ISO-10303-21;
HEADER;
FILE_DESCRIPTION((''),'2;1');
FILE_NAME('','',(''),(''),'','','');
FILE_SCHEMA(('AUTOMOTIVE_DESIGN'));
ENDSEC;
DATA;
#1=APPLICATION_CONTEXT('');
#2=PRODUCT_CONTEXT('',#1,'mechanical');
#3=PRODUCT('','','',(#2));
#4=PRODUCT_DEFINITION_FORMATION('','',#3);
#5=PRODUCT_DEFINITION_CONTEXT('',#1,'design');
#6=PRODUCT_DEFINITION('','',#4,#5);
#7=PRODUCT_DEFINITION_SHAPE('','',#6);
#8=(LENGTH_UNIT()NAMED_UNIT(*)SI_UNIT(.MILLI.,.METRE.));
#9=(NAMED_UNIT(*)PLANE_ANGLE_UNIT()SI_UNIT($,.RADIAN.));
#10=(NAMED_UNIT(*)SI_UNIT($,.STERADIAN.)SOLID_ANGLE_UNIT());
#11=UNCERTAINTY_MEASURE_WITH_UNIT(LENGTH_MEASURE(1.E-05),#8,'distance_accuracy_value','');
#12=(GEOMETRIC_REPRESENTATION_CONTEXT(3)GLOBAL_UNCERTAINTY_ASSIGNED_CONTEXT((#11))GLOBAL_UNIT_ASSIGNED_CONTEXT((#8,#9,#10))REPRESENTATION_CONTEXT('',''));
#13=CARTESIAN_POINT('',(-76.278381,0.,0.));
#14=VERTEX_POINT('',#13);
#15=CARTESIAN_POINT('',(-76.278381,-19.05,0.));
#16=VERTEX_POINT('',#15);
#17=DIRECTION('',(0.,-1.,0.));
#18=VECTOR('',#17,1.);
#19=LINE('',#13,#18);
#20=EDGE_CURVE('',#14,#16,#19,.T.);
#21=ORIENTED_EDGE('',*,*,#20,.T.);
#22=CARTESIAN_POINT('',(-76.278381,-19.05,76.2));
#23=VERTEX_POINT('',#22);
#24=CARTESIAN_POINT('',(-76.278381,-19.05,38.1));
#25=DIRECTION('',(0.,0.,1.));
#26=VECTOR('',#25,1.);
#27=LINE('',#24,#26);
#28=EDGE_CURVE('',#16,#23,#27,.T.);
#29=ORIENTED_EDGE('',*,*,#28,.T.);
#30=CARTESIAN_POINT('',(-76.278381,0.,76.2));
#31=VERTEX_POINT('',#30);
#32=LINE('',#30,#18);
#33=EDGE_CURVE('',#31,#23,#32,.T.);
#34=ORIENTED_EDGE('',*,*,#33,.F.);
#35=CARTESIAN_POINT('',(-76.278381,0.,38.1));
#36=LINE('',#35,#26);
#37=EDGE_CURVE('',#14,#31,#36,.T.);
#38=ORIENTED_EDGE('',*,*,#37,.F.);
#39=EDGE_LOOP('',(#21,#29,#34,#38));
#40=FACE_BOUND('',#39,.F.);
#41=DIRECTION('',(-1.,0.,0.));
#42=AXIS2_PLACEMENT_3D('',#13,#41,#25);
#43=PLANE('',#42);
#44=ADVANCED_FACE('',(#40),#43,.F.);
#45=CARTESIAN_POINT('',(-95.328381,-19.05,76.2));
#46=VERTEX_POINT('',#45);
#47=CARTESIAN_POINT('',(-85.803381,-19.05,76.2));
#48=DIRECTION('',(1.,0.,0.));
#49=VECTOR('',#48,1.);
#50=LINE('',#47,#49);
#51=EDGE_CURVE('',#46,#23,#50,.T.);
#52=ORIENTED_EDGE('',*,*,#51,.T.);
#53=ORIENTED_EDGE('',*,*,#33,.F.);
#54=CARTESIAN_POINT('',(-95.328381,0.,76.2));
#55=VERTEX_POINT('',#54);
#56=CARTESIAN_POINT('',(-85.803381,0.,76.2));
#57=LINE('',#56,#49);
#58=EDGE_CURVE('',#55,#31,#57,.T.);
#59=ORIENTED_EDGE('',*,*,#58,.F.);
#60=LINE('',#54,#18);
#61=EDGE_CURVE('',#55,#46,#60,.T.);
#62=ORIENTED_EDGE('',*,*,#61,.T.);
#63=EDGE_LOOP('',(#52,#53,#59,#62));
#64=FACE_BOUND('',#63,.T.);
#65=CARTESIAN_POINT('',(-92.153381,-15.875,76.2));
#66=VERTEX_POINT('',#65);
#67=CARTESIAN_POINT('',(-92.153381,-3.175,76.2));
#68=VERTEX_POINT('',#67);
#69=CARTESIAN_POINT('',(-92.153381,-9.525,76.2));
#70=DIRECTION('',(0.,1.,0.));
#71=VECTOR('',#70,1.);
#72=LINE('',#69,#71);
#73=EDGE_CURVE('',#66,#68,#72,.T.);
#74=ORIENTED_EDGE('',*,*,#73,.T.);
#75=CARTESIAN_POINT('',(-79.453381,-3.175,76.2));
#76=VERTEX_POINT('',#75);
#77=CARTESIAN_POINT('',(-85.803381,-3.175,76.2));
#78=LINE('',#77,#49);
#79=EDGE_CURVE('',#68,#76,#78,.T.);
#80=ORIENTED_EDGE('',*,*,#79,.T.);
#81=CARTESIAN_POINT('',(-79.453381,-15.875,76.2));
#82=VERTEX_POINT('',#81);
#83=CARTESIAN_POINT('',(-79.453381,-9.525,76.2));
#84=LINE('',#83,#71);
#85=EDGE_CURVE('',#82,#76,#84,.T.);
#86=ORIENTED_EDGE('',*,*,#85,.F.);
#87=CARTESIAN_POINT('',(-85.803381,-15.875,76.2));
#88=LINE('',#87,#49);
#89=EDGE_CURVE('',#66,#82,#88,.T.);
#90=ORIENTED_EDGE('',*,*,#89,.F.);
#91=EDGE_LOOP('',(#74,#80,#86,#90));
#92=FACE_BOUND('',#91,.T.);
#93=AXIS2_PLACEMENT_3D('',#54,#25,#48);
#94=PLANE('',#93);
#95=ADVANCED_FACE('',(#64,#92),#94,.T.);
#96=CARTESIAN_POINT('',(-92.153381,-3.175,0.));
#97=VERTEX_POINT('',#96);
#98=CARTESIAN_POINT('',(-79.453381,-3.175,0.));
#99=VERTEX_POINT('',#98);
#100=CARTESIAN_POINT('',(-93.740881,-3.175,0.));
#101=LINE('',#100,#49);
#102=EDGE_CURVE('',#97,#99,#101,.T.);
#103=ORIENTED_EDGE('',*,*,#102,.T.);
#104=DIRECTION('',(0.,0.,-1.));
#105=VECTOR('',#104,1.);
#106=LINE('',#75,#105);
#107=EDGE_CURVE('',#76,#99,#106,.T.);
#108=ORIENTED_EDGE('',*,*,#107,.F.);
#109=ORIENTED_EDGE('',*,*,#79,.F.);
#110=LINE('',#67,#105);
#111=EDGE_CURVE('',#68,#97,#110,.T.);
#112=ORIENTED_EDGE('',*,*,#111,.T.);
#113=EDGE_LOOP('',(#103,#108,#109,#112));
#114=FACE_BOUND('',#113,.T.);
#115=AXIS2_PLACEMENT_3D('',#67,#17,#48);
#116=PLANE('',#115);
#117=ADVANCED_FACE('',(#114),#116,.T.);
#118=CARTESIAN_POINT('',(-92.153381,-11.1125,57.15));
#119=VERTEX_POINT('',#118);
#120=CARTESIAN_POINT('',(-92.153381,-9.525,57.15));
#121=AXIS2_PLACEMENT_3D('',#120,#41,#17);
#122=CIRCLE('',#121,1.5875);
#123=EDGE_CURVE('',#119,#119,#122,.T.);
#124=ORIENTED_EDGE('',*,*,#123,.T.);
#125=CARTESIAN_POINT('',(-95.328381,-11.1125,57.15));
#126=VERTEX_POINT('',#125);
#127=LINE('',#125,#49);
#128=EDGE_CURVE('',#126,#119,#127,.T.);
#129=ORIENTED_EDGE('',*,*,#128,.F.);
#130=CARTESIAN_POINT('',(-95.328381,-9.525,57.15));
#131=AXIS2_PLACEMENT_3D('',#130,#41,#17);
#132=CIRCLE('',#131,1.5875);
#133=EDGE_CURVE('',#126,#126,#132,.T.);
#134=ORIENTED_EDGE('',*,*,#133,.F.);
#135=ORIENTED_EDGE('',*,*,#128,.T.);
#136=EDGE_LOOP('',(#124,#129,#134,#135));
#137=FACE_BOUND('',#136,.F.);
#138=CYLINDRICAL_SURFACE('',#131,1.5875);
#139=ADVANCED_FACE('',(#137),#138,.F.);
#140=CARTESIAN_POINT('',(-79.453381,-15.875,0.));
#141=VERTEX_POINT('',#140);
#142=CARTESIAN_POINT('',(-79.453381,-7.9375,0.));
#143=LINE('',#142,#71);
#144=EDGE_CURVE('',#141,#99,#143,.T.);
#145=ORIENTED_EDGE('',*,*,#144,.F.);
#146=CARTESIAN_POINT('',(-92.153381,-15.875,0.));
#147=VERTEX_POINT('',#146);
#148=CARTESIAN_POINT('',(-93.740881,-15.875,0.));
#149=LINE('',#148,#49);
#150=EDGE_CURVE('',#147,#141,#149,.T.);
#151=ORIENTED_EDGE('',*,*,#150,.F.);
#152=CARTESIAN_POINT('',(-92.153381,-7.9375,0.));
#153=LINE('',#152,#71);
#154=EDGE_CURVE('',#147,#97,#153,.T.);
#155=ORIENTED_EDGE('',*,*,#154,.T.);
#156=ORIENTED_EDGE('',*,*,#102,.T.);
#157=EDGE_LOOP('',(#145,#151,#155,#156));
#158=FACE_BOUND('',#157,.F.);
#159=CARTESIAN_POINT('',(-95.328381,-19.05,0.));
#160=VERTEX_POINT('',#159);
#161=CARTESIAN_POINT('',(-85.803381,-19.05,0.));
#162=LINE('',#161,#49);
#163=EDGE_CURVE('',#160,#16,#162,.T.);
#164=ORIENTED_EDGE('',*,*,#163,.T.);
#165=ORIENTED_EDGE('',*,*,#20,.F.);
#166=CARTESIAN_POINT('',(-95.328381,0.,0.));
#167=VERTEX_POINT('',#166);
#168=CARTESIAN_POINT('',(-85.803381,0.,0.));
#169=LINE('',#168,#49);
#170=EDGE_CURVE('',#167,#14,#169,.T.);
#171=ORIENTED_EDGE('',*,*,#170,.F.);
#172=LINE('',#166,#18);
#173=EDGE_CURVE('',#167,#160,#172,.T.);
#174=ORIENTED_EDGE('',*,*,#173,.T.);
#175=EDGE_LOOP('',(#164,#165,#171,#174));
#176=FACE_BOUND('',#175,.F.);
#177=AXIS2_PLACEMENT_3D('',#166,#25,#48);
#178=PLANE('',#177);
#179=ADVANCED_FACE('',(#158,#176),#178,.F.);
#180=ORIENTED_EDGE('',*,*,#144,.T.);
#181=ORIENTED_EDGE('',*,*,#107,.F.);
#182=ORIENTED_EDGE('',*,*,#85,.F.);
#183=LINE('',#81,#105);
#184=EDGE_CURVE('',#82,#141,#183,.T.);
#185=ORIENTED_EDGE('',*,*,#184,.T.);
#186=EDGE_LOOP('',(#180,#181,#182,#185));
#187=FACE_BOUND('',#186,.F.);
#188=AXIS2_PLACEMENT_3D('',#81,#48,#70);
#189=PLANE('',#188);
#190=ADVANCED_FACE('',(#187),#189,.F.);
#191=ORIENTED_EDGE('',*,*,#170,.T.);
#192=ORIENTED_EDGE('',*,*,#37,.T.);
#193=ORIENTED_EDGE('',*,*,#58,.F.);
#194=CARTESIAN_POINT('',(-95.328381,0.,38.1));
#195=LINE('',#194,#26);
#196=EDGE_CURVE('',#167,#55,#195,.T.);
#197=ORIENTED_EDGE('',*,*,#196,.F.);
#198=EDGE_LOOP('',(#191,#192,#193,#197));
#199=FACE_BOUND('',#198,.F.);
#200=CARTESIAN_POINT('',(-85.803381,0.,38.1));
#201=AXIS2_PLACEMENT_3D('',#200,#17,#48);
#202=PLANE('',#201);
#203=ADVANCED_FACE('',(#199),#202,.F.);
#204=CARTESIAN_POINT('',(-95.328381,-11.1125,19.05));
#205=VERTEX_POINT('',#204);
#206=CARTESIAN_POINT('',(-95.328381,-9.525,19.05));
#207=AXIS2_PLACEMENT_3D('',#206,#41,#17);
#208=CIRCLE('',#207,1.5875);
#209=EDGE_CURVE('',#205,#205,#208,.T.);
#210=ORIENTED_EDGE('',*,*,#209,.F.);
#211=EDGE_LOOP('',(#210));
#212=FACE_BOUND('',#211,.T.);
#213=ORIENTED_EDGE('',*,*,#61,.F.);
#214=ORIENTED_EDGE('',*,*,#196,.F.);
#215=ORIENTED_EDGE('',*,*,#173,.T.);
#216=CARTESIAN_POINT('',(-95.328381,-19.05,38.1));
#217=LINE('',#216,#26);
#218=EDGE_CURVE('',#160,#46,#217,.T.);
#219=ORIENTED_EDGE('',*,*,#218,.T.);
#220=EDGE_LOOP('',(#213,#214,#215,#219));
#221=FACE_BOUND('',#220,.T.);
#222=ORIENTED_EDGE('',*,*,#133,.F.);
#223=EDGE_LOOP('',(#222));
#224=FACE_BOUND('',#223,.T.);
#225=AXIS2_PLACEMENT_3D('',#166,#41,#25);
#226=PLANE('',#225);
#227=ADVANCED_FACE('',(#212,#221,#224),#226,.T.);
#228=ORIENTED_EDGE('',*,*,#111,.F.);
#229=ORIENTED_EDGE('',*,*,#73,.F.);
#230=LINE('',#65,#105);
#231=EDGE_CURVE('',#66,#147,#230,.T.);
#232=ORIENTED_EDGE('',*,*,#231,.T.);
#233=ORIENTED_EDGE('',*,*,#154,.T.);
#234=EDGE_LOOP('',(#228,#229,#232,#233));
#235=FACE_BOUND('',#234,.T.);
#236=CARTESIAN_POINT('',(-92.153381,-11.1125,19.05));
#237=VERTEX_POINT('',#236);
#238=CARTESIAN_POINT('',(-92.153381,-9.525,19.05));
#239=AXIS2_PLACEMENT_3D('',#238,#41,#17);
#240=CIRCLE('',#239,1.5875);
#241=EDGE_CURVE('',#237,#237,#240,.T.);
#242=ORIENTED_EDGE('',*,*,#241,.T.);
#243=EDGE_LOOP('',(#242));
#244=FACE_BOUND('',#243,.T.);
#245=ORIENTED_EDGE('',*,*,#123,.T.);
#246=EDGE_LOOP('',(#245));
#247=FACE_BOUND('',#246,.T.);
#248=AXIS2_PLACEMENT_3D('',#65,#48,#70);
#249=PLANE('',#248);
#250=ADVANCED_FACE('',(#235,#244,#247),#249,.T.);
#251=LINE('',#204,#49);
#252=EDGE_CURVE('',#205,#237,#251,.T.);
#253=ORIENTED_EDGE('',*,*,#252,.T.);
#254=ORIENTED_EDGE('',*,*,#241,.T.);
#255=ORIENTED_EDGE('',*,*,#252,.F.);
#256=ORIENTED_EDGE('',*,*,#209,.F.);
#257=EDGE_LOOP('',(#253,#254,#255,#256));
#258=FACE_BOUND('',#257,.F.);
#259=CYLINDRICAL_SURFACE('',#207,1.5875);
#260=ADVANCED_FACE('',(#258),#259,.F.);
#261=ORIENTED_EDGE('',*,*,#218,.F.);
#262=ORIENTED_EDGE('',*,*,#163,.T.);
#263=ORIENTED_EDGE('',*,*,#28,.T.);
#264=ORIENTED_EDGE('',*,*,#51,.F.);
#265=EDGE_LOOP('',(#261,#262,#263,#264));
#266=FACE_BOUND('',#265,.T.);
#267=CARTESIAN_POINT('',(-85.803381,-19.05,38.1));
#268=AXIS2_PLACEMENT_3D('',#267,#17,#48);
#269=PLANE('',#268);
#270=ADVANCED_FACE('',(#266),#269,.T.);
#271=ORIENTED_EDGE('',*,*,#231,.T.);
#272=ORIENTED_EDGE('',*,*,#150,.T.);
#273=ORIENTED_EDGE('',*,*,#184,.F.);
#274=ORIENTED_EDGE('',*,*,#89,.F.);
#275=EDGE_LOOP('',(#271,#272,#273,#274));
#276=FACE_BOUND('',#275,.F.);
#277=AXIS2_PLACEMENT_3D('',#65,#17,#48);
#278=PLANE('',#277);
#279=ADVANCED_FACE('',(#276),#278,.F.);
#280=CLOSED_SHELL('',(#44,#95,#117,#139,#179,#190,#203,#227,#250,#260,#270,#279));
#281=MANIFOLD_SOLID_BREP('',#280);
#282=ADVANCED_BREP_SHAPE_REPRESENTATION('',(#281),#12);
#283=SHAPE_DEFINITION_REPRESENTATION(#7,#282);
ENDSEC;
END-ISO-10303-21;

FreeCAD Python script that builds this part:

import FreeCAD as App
import Part
import Sketcher
Q = App.Units.Quantity

doc = App.newDocument("Part")
body = doc.addObject("PartDesign::Body", "Body")

# Sketch on XZ plane
sketch1 = doc.addObject("Sketcher::SketchObject", "Sketch")
body.addObject(sketch1)
sketch1.AttachmentSupport = (doc.XZ_Plane, [""])
sketch1.MapMode = "FlatFace"
sketch1.addGeometry(Part.LineSegment(App.Vector(-95, 76, 0), App.Vector(-95, 0, 0)), False)
sketch1.addGeometry(Part.LineSegment(App.Vector(-95, 0, 0), App.Vector(-76, 0, 0)), False)
sketch1.addGeometry(Part.LineSegment(App.Vector(-76, 0, 0), App.Vector(-76, 76, 0)), False)
sketch1.addGeometry(Part.LineSegment(App.Vector(-76, 76, 0), App.Vector(-95, 76, 0)), False)
sketch1.addConstraint(Sketcher.Constraint("Coincident", 0, 2, 1, 1))
sketch1.addConstraint(Sketcher.Constraint("Coincident", 1, 2, 2, 1))
sketch1.addConstraint(Sketcher.Constraint("Coincident", 2, 2, 3, 1))
sketch1.addConstraint(Sketcher.Constraint("Coincident", 3, 2, 0, 1))
sketch1.addConstraint(Sketcher.Constraint("Vertical", 0))
sketch1.addConstraint(Sketcher.Constraint("Horizontal", 1))
sketch1.addConstraint(Sketcher.Constraint("Vertical", 2))
sketch1.addConstraint(Sketcher.Constraint("Horizontal", 3))
sketch1.addConstraint(Sketcher.Constraint("PointOnObject", 0, 2, -1))
sketch1.addConstraint(Sketcher.Constraint("DistanceY", 0, 2, 0, 1, Q("3 in")))
sketch1.addConstraint(Sketcher.Constraint("DistanceX", 1, 1, 1, 2, Q("0.75 in")))
sketch1.addConstraint(Sketcher.Constraint("DistanceX", 0, 2, -1, 1, 95.328381))
pad1 = doc.addObject("PartDesign::Pad", "Pad")
body.addObject(pad1)
pad1.Profile = sketch1
pad1.Length = Q("0.75 in")

# Sketch on XY plane
sketch2 = doc.addObject("Sketcher::SketchObject", "Sketch001")
body.addObject(sketch2)
sketch2.AttachmentSupport = (doc.XY_Plane, [""])
sketch2.MapMode = "FlatFace"
sketch2.AttachmentOffset = App.Placement(App.Vector(0, 0, 3 * 25.4), App.Rotation())
sketch2.addGeometry(Part.LineSegment(App.Vector(-92, -3, 0), App.Vector(-92, -16, 0)), False)
sketch2.addGeometry(Part.LineSegment(App.Vector(-92, -16, 0), App.Vector(-79, -16, 0)), False)
sketch2.addGeometry(Part.LineSegment(App.Vector(-79, -16, 0), App.Vector(-79, -3, 0)), False)
sketch2.addGeometry(Part.LineSegment(App.Vector(-79, -3, 0), App.Vector(-92, -3, 0)), False)
sketch2.addConstraint(Sketcher.Constraint("Coincident", 0, 2, 1, 1))
sketch2.addConstraint(Sketcher.Constraint("Coincident", 1, 2, 2, 1))
sketch2.addConstraint(Sketcher.Constraint("Coincident", 2, 2, 3, 1))
sketch2.addConstraint(Sketcher.Constraint("Coincident", 3, 2, 0, 1))
sketch2.addConstraint(Sketcher.Constraint("Vertical", 0))
sketch2.addConstraint(Sketcher.Constraint("Horizontal", 1))
sketch2.addConstraint(Sketcher.Constraint("Vertical", 2))
sketch2.addConstraint(Sketcher.Constraint("Horizontal", 3))
sketch2.addConstraint(Sketcher.Constraint("Equal", 3, 0))
sketch2.addConstraint(Sketcher.Constraint("DistanceX", 1, 1, 1, 2, Q("0.5 in")))
sketch2.addConstraint(Sketcher.Constraint("DistanceY", 0, 2, -1, 1, Q("0.625 in")))
sketch2.addConstraint(Sketcher.Constraint("DistanceX", 0, 2, -1, 1, 92.153381))
pocket1 = doc.addObject("PartDesign::Pocket", "Pocket")
body.addObject(pocket1)
pocket1.Profile = sketch2
pocket1.Type = "ThroughAll"

# Sketch on YZ plane
sketch3 = doc.addObject("Sketcher::SketchObject", "Sketch002")
body.addObject(sketch3)
sketch3.AttachmentSupport = (doc.YZ_Plane, [""])
sketch3.MapMode = "FlatFace"
sketch3.AttachmentOffset = App.Placement(App.Vector(0, 0, -95.328381), App.Rotation())
sketch3.addGeometry(Part.Circle(App.Vector(-9.5, 57.1, 0), App.Vector(0, 0, 1), 1.6), False)
sketch3.addGeometry(Part.Circle(App.Vector(-9.5, 19.1, 0), App.Vector(0, 0, 1), 1.6), False)
sketch3.addConstraint(Sketcher.Constraint("Equal", 0, 1))
sketch3.addConstraint(Sketcher.Constraint("Vertical", 0, 3, 1, 3))
sketch3.addConstraint(Sketcher.Constraint("Diameter", 0, Q("0.125 in")))
sketch3.addConstraint(Sketcher.Constraint("DistanceY", 1, 3, 0, 3, Q("1.5 in")))
sketch3.addConstraint(Sketcher.Constraint("DistanceY", -1, 1, 0, 3, Q("2.25 in")))
sketch3.addConstraint(Sketcher.Constraint("DistanceX", 0, 3, -1, 1, Q("0.375 in")))
pocket2 = doc.addObject("PartDesign::Pocket", "Pocket001")
body.addObject(pocket2)
pocket2.Profile = sketch3
pocket2.Length = Q("0.125 in")
pocket2.Reversed = True

doc.recompute()
